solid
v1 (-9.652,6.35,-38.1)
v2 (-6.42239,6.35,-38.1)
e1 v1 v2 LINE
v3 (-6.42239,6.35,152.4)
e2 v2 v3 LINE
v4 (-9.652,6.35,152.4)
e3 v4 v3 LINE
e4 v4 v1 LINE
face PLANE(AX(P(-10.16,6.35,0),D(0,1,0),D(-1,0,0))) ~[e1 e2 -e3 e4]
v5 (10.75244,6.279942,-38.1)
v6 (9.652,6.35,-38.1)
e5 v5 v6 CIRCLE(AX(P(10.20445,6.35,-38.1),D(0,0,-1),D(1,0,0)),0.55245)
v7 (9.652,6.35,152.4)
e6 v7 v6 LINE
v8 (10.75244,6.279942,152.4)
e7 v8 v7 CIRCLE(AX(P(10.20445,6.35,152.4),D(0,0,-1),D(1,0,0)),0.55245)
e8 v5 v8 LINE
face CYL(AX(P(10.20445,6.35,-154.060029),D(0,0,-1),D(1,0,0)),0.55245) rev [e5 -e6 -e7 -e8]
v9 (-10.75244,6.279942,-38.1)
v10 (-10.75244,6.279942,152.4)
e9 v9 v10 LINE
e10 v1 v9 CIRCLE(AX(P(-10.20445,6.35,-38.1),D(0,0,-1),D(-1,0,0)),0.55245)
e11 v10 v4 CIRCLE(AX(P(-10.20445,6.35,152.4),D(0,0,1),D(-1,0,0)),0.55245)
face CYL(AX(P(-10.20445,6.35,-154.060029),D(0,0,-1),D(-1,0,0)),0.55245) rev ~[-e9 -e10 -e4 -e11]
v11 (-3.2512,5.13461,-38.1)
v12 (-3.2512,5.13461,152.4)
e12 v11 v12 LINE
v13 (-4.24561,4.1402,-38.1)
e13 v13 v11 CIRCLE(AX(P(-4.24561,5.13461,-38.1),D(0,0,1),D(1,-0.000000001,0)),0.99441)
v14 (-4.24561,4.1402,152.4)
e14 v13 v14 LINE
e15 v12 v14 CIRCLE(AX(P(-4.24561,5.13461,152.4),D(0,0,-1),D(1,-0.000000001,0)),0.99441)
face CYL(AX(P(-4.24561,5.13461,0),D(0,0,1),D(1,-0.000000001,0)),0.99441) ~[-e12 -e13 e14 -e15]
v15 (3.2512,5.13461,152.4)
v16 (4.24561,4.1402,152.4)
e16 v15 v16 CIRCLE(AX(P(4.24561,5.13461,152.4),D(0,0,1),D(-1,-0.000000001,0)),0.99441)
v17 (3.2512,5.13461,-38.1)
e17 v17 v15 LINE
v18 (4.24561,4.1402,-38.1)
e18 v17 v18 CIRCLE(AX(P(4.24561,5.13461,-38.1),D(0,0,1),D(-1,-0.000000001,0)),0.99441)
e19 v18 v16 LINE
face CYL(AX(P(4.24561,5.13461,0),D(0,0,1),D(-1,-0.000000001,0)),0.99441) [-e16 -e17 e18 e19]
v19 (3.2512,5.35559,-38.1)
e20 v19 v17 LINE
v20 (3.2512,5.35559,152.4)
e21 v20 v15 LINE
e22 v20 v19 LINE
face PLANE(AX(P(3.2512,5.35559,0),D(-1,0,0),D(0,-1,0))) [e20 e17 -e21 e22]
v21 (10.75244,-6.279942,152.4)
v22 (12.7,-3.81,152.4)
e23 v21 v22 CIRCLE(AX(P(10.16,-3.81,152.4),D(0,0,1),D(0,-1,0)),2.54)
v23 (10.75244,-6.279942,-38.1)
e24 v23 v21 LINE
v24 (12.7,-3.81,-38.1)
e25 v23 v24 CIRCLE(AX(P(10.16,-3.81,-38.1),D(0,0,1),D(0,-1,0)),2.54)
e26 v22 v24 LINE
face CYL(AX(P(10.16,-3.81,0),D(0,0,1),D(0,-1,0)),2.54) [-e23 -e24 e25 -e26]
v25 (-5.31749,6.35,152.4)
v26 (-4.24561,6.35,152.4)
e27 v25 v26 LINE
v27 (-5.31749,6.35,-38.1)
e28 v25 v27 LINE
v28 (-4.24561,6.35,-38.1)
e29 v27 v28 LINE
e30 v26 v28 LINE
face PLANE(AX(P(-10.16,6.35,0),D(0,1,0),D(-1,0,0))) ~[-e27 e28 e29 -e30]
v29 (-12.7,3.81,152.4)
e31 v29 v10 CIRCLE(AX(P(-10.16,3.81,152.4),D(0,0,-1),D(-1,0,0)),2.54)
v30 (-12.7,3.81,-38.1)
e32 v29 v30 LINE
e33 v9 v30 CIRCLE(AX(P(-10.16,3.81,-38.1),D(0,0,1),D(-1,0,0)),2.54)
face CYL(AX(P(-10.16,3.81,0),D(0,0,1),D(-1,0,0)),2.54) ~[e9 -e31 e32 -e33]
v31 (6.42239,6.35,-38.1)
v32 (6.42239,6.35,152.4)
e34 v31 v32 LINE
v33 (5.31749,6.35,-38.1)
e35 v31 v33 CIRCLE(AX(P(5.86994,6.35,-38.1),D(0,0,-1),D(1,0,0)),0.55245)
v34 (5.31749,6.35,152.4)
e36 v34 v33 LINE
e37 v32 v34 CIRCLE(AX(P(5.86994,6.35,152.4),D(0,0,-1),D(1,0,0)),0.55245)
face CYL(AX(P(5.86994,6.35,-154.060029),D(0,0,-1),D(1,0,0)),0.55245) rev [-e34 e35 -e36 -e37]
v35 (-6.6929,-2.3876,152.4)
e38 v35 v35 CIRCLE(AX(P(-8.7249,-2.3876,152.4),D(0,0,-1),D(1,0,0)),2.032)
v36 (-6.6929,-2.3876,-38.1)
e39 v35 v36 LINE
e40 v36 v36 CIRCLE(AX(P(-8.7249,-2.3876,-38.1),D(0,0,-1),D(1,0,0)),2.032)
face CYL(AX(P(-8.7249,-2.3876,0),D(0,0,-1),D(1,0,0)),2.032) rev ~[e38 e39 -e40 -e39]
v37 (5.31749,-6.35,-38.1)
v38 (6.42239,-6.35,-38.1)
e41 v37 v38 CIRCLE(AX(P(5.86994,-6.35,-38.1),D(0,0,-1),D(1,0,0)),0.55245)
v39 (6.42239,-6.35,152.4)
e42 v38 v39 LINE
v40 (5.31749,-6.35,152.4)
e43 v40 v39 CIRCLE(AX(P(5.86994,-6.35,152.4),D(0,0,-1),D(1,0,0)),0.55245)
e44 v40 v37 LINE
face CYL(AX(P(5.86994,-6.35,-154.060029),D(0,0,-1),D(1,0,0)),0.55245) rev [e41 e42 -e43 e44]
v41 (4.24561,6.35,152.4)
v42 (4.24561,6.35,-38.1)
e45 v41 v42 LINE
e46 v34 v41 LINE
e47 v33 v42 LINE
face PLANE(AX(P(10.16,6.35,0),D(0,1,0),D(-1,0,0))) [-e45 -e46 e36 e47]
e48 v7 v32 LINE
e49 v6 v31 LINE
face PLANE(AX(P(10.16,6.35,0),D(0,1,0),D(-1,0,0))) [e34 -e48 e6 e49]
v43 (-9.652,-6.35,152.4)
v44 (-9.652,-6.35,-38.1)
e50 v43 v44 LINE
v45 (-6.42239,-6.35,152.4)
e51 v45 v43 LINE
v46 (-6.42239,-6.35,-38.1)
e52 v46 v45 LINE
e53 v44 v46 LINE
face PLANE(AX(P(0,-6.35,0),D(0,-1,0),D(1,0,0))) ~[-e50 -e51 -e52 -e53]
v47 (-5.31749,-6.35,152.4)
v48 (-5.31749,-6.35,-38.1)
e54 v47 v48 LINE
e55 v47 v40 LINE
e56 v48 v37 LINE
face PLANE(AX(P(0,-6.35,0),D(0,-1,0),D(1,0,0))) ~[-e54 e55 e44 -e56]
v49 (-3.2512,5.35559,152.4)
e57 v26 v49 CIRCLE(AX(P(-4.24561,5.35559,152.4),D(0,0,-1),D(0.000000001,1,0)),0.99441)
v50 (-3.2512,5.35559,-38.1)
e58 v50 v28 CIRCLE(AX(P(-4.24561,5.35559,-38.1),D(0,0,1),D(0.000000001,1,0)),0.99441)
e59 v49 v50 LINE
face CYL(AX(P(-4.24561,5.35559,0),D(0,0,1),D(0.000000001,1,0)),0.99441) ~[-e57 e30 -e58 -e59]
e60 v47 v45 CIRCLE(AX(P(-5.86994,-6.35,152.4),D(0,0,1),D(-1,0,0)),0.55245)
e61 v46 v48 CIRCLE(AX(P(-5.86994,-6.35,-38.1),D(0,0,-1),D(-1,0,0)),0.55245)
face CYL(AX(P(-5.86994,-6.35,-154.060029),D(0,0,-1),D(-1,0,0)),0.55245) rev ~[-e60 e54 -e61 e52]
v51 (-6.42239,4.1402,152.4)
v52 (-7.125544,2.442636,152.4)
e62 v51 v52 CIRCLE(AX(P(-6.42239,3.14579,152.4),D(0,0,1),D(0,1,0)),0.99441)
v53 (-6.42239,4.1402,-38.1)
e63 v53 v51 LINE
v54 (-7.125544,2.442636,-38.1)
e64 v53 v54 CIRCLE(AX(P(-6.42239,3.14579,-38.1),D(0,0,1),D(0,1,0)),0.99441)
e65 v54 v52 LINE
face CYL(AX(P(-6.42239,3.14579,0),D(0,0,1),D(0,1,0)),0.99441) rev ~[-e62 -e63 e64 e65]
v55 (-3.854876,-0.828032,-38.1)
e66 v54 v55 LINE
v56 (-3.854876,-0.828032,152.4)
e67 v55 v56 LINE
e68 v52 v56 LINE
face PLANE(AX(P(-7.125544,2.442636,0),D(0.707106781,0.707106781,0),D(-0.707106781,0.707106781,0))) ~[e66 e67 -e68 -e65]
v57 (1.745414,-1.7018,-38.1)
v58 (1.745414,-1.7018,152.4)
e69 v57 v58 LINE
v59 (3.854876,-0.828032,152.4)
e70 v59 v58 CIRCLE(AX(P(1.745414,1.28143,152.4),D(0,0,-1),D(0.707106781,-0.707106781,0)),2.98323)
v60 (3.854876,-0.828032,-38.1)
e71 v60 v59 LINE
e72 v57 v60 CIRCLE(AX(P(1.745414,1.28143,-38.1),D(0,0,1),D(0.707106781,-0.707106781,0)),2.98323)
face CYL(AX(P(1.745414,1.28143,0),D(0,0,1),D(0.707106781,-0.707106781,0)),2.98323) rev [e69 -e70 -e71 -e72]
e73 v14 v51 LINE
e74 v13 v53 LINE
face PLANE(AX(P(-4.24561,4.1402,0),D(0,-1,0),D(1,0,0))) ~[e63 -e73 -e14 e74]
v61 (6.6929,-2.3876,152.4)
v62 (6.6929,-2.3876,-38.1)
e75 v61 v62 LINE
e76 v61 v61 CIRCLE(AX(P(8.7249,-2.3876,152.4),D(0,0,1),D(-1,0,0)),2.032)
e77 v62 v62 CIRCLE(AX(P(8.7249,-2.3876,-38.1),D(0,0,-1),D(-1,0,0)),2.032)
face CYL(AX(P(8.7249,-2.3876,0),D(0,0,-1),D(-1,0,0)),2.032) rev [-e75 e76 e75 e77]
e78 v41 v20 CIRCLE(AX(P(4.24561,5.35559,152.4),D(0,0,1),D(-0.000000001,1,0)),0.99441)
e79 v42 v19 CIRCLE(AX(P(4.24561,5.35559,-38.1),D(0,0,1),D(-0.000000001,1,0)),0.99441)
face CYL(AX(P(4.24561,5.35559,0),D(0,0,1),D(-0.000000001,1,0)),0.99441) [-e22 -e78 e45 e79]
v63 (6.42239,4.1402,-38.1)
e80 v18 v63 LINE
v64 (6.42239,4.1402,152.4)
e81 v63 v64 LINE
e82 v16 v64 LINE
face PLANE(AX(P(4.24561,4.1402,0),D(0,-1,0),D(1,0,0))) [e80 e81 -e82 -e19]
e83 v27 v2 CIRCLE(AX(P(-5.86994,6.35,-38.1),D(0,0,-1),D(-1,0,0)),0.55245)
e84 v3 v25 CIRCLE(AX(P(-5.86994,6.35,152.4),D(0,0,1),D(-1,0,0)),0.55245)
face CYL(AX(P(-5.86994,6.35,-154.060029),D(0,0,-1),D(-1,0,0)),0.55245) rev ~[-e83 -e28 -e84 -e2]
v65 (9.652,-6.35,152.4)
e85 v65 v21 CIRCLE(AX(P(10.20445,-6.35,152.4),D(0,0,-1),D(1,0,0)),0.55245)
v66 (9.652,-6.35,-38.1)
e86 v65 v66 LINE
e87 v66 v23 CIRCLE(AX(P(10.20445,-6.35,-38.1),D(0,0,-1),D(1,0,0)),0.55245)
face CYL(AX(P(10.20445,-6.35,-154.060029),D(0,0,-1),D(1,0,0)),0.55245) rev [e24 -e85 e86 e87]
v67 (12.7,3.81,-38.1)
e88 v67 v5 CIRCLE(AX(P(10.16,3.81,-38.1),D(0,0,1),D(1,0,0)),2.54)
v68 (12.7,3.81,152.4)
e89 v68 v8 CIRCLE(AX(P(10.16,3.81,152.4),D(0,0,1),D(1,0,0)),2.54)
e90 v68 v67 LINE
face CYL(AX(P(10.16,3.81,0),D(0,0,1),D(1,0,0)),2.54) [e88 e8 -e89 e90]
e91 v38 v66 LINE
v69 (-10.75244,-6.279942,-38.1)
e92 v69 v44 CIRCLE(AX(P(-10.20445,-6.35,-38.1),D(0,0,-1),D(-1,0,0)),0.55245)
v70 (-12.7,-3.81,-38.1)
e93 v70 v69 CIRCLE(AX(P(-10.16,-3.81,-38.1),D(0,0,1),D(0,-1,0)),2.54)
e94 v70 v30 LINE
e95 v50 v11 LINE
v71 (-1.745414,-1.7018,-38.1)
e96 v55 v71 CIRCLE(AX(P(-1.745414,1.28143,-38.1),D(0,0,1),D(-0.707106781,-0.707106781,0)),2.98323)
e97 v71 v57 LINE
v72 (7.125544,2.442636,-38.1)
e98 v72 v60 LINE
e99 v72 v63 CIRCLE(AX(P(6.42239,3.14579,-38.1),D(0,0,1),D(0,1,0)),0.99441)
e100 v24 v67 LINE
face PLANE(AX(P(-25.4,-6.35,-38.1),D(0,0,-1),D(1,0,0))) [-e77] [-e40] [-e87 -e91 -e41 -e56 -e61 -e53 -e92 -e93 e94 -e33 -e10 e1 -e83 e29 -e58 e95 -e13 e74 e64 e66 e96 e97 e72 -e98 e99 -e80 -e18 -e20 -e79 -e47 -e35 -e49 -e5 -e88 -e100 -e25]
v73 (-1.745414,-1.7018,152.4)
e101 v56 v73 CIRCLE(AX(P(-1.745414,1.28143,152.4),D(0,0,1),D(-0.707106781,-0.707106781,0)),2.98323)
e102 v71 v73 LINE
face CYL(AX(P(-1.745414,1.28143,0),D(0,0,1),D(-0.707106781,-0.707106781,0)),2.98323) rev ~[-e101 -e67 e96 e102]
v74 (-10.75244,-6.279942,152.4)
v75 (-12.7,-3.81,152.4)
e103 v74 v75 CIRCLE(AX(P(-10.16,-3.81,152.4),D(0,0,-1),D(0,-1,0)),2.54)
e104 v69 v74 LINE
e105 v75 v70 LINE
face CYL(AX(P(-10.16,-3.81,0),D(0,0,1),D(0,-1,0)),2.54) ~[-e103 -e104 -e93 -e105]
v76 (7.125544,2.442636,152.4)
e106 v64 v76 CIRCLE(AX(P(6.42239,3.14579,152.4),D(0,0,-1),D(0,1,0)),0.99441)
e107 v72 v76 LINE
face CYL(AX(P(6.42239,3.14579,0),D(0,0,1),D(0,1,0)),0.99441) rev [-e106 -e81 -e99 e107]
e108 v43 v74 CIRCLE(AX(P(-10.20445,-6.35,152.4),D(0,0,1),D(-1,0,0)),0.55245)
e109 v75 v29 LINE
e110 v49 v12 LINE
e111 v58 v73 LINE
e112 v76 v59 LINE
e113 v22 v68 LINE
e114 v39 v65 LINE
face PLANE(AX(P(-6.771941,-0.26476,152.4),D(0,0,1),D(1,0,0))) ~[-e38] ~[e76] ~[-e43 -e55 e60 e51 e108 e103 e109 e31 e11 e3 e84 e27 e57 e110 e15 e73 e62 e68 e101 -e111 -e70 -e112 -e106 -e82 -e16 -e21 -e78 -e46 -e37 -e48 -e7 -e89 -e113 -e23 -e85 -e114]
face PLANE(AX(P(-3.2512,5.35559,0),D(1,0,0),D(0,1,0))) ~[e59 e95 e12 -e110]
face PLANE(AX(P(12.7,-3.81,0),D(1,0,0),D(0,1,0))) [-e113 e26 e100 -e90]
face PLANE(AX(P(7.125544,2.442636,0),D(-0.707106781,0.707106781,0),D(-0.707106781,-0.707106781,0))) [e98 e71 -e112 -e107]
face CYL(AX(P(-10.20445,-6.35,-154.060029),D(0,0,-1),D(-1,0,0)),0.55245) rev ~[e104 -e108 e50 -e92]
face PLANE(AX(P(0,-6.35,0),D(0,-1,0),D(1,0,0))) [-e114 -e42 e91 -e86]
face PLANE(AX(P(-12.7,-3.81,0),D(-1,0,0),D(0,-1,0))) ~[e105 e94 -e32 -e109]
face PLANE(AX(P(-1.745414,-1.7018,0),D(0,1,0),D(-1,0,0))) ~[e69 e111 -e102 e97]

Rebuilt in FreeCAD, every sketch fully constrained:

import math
import FreeCAD as App
import Part
import Sketcher

V = App.Vector
Q = App.Units.Quantity

doc = App.newDocument("Part")
body = doc.addObject("PartDesign::Body", "Body")

# Sketch on XY plane
sketch1 = body.newObject("Sketcher::SketchObject", "Sketch")
sketch1.AttachmentSupport = (doc.getObject("XY_Plane"), [""])
sketch1.MapMode = "FlatFace"
sketch1.addGeometry([
    Part.LineSegment(V(3.2512, 5.35559, 0), V(3.2512, 5.13461, 0)),  # 0
    Part.ArcOfCircle(Part.Circle(V(4.24561, 5.13461, 0), V(0, 0, 1), 0.99441), math.radians(-180), math.radians(-90)),  # 1
    Part.LineSegment(V(4.24561, 4.1402, 0), V(6.42239, 4.1402, 0)),  # 2
    Part.ArcOfCircle(Part.Circle(V(6.42239, 3.14579, 0), V(0, 0, 1), 0.99441), math.radians(-45), math.radians(90)),  # 3
    Part.LineSegment(V(7.125544, 2.442636, 0), V(3.854876, -0.828032, 0)),  # 4
    Part.ArcOfCircle(Part.Circle(V(1.745414, 1.28143, 0), V(0, 0, 1), 2.98323), math.radians(-90), math.radians(-45)),  # 5
    Part.LineSegment(V(1.745414, -1.7018, 0), V(0, -1.7018, 0)),  # 6
    Part.LineSegment(V(0, -1.7018, 0), V(0, -6.35, 0)),  # 7
    Part.LineSegment(V(0, -6.35, 0), V(10.16, -6.35, 0)),  # 8
    Part.ArcOfCircle(Part.Circle(V(10.16, -3.81, 0), V(0, 0, 1), 2.54), math.radians(-90), math.radians(0)),  # 9
    Part.LineSegment(V(12.7, -3.81, 0), V(12.7, 3.81, 0)),  # 10
    Part.ArcOfCircle(Part.Circle(V(10.16, 3.81, 0), V(0, 0, 1), 2.54), math.radians(0), math.radians(90)),  # 11
    Part.LineSegment(V(10.16, 6.35, 0), V(4.24561, 6.35, 0)),  # 12
    Part.ArcOfCircle(Part.Circle(V(4.24561, 5.35559, 0), V(0, 0, 1), 0.99441), math.radians(90), math.radians(180)),  # 13
    Part.Circle(V(8.7249, -2.3876, 0), V(0, 0, 1), 2.032),  # 14
], False)
sketch1.addConstraint([
    Sketcher.Constraint("Tangent", 0, 2, 1, 1),
    Sketcher.Constraint("Tangent", 1, 2, 2, 1),
    Sketcher.Constraint("Tangent", 2, 2, 3, 2),
    Sketcher.Constraint("Tangent", 3, 1, 4, 1),
    Sketcher.Constraint("Tangent", 4, 2, 5, 2),
    Sketcher.Constraint("Tangent", 5, 1, 6, 1),
    Sketcher.Constraint("Coincident", 6, 2, 7, 1),
    Sketcher.Constraint("Coincident", 7, 2, 8, 1),
    Sketcher.Constraint("Tangent", 8, 2, 9, 1),
    Sketcher.Constraint("Tangent", 9, 2, 10, 1),
    Sketcher.Constraint("Tangent", 10, 2, 11, 1),
    Sketcher.Constraint("Tangent", 11, 2, 12, 1),
    Sketcher.Constraint("Tangent", 12, 2, 13, 1),
    Sketcher.Constraint("Tangent", 13, 2, 0, 1),
    Sketcher.Constraint("Vertical", 0),
    Sketcher.Constraint("Horizontal", 2),
    Sketcher.Constraint("Horizontal", 6),
    Sketcher.Constraint("Vertical", 7),
    Sketcher.Constraint("Horizontal", 8),
    Sketcher.Constraint("Vertical", 10),
    Sketcher.Constraint("Horizontal", 12),
    Sketcher.Constraint("Equal", 1, 3),
    Sketcher.Constraint("Equal", 9, 11),
    Sketcher.Constraint("Equal", 3, 13),
    Sketcher.Constraint("PointOnObject", 6, 2, -2),
    Sketcher.Constraint("Radius", 9, Q("0.1 in")),
    Sketcher.Constraint("Diameter", 14, Q("0.16 in")),
    Sketcher.Constraint("DistanceX", 8, 1, 8, 2, Q("0.4 in")),
    Sketcher.Constraint("DistanceY", 10, 1, 10, 2, Q("0.3 in")),
    Sketcher.Constraint("Angle", 4, Q("-135 deg")),
    Sketcher.Constraint("DistanceY", 7, 2, 7, 1, Q("0.183 in")),
    Sketcher.Constraint("DistanceY", 9, 3, -1, 1, Q("0.15 in")),
    Sketcher.Constraint("DistanceY", 5, 1, 1, 2, Q("0.23 in")),
    Sketcher.Constraint("DistanceX", 2, 1, 2, 2, Q("0.0857 in")),
    Sketcher.Constraint("DistanceY", 0, 2, 0, 1, Q("0.0087 in")),
    Sketcher.Constraint("DistanceY", 14, 3, -1, 1, Q("0.094 in")),
    Sketcher.Constraint("DistanceX", -1, 1, 0, 2, Q("0.128 in")),
    Sketcher.Constraint("Radius", 5, Q("2.98323 mm")),
    Sketcher.Constraint("DistanceX", -1, 1, 14, 3, Q("0.3435 in")),
])
pad1 = body.newObject("PartDesign::Pad", "Pad")
pad1.Profile = sketch1
pad1.Length = Q("12 in")
pad1.Midplane = True

# Sketch on XY plane
sketch2 = body.newObject("Sketcher::SketchObject", "Sketch001")
sketch2.AttachmentSupport = (doc.getObject("XY_Plane"), [""])
sketch2.MapMode = "FlatFace"
sketch2.addGeometry([
    Part.Circle(V(5.86994, 6.35, 0), V(0, 0, 1), 0.55245),
    Part.Circle(V(10.20445, 6.35, 0), V(0, 0, 1), 0.55245),
    Part.Circle(V(5.86994, -6.35, 0), V(0, 0, 1), 0.55245),
    Part.Circle(V(10.20445, -6.35, 0), V(0, 0, 1), 0.55245),
], False)
sketch2.addConstraint([
    Sketcher.Constraint("Equal", 0, 1),
    Sketcher.Constraint("Equal", 1, 2),
    Sketcher.Constraint("Equal", 2, 3),
    Sketcher.Constraint("Symmetric", 0, 3, 2, 3, -1),
    Sketcher.Constraint("Symmetric", 1, 3, 3, 3, -1),
    Sketcher.Constraint("Horizontal", 0, 3, 1, 3),
    Sketcher.Constraint("Diameter", 0, Q("0.0435 in")),
    Sketcher.Constraint("DistanceY", 2, 3, 0, 3, Q("0.5 in")),
    Sketcher.Constraint("DistanceX", -1, 1, 0, 3, Q("0.2311 in")),
    Sketcher.Constraint("DistanceX", -1, 1, 1, 3, Q("10.20445 mm")),
])
pocket1 = body.newObject("PartDesign::Pocket", "Pocket")
pocket1.Profile = sketch2
pocket1.Type = "ThroughAll"
pocket1.Midplane = True
body2 = doc.addObject("PartDesign::Body", "Body001")
doc.recompute()

body2.BaseFeature = body
doc.recompute()

mirroring = doc.addObject("Part::Mirroring", "Mirroring")
mirroring.Source = body
mirroring.Base = V(0, 0, 0)
mirroring.Normal = V(1, 0, 0)
body3 = doc.addObject("PartDesign::Body", "Body002")
body3.BaseFeature = mirroring
boolean = body2.newObject("PartDesign::Boolean", "Boolean")
boolean.Type = "Fuse"
boolean.addObjects([body3])
doc.recompute()

# Sketch on XZ plane
sketch3 = body2.newObject("Sketcher::SketchObject", "Sketch002")
sketch3.AttachmentSupport = (doc.getObject("XZ_Plane001"), [""])
sketch3.MapMode = "FlatFace"
sketch3.AttachmentOffset = App.Placement(V(0, 0, 0.25 * 25.4), App.Rotation())
sketch3.addGeometry([
    Part.LineSegment(V(-25.4, -38.1, 0), V(-25.4, -152.4, 0)),
    Part.LineSegment(V(-25.4, -152.4, 0), V(25.4, -152.4, 0)),
    Part.LineSegment(V(25.4, -152.4, 0), V(25.4, -38.1, 0)),
    Part.LineSegment(V(25.4, -38.1, 0), V(-25.4, -38.1, 0)),
], False)
sketch3.addConstraint([
    Sketcher.Constraint("Coincident", 0, 2, 1, 1),
    Sketcher.Constraint("Coincident", 1, 2, 2, 1),
    Sketcher.Constraint("Coincident", 2, 2, 3, 1),
    Sketcher.Constraint("Coincident", 3, 2, 0, 1),
    Sketcher.Constraint("Vertical", 0),
    Sketcher.Constraint("Horizontal", 1),
    Sketcher.Constraint("Vertical", 2),
    Sketcher.Constraint("Horizontal", 3),
    Sketcher.Constraint("DistanceX", 1, 1, 1, 2, Q("2 in")),
    Sketcher.Constraint("DistanceY", 0, 2, 0, 1, Q("4.5 in")),
    Sketcher.Constraint("DistanceX", 0, 2, -1, 1, Q("1 in")),
    Sketcher.Constraint("DistanceY", 0, 2, -1, 1, Q("6 in")),
])
pocket2 = body2.newObject("PartDesign::Pocket", "Pocket001")
pocket2.Profile = sketch3
pocket2.Type = "ThroughAll"
mirroring.Visibility = False

doc.recompute()
